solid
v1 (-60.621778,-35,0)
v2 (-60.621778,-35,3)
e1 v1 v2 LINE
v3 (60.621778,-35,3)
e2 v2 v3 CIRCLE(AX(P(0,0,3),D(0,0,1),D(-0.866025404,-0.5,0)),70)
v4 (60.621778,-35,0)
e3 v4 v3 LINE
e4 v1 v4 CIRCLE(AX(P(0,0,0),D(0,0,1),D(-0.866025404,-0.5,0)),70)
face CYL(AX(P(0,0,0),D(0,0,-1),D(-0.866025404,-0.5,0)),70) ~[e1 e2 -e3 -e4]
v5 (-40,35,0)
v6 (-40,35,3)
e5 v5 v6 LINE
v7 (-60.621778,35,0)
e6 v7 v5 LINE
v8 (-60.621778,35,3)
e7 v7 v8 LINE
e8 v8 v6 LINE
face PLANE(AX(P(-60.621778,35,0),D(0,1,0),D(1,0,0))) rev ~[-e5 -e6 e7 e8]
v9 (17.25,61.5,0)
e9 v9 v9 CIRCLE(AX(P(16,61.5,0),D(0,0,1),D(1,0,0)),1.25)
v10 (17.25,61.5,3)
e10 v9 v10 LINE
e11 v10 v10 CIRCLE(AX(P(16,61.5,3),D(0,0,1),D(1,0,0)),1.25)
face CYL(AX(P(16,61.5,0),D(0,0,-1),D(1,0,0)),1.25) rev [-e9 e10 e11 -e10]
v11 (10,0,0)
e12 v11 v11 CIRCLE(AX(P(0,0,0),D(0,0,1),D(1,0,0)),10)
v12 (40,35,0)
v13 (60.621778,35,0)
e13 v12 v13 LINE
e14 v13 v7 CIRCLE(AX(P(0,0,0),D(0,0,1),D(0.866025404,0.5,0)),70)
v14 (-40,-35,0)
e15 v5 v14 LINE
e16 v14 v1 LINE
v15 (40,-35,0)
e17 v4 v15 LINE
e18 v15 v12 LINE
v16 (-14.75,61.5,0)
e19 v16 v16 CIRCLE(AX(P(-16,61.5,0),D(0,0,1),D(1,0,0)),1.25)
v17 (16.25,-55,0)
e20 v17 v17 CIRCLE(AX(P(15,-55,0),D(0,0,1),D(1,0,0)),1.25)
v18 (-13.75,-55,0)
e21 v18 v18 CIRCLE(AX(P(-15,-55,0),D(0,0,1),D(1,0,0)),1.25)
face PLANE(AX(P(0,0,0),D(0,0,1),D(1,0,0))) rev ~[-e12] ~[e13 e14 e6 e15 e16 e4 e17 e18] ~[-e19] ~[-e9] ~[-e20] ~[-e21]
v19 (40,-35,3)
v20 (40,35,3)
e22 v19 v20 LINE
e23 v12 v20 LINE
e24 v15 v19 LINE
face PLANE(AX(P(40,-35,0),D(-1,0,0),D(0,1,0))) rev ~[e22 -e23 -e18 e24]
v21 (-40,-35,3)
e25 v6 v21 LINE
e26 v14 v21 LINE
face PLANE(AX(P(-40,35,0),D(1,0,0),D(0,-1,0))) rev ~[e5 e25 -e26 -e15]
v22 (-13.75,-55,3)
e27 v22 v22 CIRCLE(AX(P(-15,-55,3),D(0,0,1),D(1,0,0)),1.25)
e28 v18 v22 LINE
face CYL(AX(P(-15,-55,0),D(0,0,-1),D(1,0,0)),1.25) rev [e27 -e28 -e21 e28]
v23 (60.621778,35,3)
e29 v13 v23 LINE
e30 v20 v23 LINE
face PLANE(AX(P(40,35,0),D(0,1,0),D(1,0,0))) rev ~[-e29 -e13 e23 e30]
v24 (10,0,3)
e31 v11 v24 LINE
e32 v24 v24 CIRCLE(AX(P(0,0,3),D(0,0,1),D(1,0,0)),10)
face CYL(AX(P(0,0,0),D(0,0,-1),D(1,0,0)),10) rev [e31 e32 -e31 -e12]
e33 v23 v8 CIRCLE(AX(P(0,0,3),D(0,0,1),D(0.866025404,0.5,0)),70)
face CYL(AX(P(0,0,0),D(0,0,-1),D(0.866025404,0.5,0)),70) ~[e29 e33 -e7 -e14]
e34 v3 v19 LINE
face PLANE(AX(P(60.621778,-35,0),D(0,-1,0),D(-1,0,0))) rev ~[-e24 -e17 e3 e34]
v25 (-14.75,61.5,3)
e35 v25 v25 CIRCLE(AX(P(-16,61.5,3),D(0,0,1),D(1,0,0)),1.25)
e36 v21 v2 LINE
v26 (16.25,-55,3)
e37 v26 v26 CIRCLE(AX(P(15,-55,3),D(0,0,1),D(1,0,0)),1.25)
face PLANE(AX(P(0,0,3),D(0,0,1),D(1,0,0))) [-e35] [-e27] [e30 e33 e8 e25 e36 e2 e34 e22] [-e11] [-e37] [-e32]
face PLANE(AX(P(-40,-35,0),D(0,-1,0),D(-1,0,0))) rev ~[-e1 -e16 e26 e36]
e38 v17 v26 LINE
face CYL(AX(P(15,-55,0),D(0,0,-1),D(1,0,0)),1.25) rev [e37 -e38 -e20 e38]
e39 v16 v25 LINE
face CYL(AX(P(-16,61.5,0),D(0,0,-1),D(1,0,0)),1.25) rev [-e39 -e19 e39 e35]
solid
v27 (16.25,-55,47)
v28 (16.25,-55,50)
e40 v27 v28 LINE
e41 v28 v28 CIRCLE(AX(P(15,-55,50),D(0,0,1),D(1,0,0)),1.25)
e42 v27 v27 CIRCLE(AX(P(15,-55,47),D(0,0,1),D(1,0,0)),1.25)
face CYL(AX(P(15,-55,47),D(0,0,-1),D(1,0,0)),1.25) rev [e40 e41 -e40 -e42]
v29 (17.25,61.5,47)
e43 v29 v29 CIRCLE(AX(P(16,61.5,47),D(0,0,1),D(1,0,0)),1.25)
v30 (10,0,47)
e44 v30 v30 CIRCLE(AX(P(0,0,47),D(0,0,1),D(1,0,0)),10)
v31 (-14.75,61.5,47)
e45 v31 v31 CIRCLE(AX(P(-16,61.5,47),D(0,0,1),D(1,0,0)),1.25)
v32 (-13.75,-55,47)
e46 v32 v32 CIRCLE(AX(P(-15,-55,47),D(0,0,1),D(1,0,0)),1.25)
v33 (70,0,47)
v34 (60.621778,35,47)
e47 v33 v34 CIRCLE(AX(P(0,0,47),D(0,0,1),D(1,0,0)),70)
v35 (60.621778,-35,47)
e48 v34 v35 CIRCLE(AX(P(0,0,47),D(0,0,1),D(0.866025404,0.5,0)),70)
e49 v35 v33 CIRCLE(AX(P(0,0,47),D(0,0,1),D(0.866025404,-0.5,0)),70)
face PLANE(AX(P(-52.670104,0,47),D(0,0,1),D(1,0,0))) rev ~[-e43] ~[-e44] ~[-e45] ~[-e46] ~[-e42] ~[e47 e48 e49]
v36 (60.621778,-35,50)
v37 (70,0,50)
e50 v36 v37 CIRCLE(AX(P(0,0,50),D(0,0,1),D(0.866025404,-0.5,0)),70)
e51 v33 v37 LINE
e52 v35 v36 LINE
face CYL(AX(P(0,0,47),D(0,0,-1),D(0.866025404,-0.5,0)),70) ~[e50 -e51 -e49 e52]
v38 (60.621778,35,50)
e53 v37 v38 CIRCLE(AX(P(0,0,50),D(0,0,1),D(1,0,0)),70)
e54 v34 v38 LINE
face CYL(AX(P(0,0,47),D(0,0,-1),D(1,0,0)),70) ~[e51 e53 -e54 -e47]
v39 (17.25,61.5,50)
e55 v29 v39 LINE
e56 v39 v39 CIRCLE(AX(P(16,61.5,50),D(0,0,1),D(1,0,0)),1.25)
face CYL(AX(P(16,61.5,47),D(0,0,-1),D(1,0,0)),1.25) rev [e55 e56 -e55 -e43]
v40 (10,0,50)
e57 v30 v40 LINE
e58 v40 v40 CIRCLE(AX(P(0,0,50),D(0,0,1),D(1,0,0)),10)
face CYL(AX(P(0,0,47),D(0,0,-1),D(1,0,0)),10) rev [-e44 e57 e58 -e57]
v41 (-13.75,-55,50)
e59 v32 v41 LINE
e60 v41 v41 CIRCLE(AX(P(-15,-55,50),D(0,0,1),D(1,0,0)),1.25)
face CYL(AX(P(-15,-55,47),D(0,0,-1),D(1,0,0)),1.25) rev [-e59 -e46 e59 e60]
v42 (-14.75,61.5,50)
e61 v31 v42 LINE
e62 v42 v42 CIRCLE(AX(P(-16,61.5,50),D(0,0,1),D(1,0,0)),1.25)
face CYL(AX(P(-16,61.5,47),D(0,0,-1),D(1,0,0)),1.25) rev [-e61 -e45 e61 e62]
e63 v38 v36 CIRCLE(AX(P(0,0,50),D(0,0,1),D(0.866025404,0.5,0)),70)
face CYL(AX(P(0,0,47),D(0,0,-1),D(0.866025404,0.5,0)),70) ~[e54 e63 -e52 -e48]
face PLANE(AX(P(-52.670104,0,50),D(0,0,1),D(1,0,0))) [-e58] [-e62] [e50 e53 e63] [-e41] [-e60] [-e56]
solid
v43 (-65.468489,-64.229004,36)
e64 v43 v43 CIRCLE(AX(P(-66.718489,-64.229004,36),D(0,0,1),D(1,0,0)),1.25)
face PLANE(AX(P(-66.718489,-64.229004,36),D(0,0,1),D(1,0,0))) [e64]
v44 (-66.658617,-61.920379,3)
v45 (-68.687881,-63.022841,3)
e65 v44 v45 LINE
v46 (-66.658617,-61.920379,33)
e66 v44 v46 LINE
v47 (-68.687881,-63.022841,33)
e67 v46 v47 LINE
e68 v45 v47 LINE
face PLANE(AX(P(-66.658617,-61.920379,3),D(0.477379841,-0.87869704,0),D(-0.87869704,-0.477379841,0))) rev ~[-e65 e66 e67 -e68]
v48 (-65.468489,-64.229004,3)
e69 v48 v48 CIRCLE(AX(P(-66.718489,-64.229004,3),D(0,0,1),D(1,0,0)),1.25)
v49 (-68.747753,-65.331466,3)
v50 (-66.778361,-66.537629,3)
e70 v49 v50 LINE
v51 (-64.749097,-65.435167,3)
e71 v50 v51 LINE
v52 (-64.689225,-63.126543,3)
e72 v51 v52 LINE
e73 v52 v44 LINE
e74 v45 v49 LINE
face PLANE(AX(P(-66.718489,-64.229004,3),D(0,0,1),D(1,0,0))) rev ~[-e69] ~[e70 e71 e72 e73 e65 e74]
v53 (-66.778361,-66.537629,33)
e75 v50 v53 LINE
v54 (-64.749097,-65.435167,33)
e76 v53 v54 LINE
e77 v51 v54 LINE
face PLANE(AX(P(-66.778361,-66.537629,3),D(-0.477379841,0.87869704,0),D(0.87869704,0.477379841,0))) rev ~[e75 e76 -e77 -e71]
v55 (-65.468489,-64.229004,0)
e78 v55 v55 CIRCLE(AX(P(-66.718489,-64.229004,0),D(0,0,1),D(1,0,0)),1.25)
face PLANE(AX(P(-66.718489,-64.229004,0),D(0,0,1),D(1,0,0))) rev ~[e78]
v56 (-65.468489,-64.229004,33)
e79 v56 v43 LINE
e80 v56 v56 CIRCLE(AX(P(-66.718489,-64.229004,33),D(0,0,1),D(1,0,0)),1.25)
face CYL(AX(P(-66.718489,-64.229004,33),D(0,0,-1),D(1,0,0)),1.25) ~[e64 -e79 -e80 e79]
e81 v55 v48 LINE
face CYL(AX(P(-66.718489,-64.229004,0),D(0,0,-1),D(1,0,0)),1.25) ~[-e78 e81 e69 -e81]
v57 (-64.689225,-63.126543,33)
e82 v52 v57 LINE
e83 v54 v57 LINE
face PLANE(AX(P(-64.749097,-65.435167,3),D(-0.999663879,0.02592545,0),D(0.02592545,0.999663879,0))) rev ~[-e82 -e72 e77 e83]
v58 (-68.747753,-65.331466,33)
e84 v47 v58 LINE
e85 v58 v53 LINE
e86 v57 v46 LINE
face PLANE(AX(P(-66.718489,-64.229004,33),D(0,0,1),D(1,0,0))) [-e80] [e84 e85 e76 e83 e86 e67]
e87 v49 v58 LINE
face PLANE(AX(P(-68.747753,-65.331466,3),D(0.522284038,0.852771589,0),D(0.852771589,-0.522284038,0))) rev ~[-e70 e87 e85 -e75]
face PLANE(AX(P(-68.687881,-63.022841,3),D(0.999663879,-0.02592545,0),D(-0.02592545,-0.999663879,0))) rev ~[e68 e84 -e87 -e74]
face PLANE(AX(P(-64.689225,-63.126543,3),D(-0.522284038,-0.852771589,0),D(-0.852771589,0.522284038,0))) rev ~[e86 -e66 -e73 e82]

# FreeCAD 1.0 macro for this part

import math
import FreeCAD as App
import Part
import Sketcher


def add_polygon(sketch, points):
    """Adds a closed chain of lines whose ends are joined by coincident constraints."""
    first, n = sketch.GeometryCount, len(points)
    for a, b in zip(points, points[1:] + points[:1]):
        sketch.addGeometry(Part.LineSegment(App.Vector(*a, 0), App.Vector(*b, 0)), False)
    for i in range(n):
        sketch.addConstraint(Sketcher.Constraint("Coincident", first + i, 2, first + (i + 1) % n, 1))

doc = App.newDocument("Part")
body = doc.addObject("PartDesign::Body", "Body")

# Sketch on XY plane
sketch1 = body.newObject("Sketcher::SketchObject", "Sketch")
sketch1.AttachmentSupport = (doc.getObject("XY_Plane"), [""])
sketch1.MapMode = "FlatFace"
sketch1.addGeometry([
    Part.LineSegment(App.Vector(40, 35, 0), App.Vector(60.621778, 35, 0)),  # 0
    Part.ArcOfCircle(Part.Circle(App.Vector(0, 0, 0), App.Vector(0, 0, 1), 70), math.radians(30), math.radians(150)),  # 1
    Part.LineSegment(App.Vector(-60.621778, 35, 0), App.Vector(-40, 35, 0)),  # 2
    Part.LineSegment(App.Vector(-40, 35, 0), App.Vector(-40, -35, 0)),  # 3
    Part.LineSegment(App.Vector(-40, -35, 0), App.Vector(-60.621778, -35, 0)),  # 4
    Part.ArcOfCircle(Part.Circle(App.Vector(0, 0, 0), App.Vector(0, 0, 1), 70), math.radians(-150), math.radians(-30)),  # 5
    Part.LineSegment(App.Vector(60.621778, -35, 0), App.Vector(40, -35, 0)),  # 6
    Part.LineSegment(App.Vector(40, -35, 0), App.Vector(40, 35, 0)),  # 7
    Part.Circle(App.Vector(-15, -55, 0), App.Vector(0, 0, 1), 1.25),  # 8
    Part.Circle(App.Vector(15, -55, 0), App.Vector(0, 0, 1), 1.25),  # 9
    Part.Circle(App.Vector(0, 0, 0), App.Vector(0, 0, 1), 10),  # 10
    Part.Circle(App.Vector(-16, 61.5, 0), App.Vector(0, 0, 1), 1.25),  # 11
    Part.Circle(App.Vector(16, 61.5, 0), App.Vector(0, 0, 1), 1.25),  # 12
], False)
sketch1.addConstraint([
    Sketcher.Constraint("Coincident", 0, 2, 1, 1),
    Sketcher.Constraint("Coincident", 1, 2, 2, 1),
    Sketcher.Constraint("Coincident", 2, 2, 3, 1),
    Sketcher.Constraint("Coincident", 3, 2, 4, 1),
    Sketcher.Constraint("Coincident", 4, 2, 5, 1),
    Sketcher.Constraint("Coincident", 5, 2, 6, 1),
    Sketcher.Constraint("Coincident", 6, 2, 7, 1),
    Sketcher.Constraint("Coincident", 7, 2, 0, 1),
    Sketcher.Constraint("Horizontal", 0),
    Sketcher.Constraint("Horizontal", 2),
    Sketcher.Constraint("Vertical", 3),
    Sketcher.Constraint("Horizontal", 4),
    Sketcher.Constraint("Horizontal", 6),
    Sketcher.Constraint("Vertical", 7),
    Sketcher.Constraint("Coincident", 1, 3, -1, 1),
    Sketcher.Constraint("Coincident", 5, 3, -1, 1),
    Sketcher.Constraint("Coincident", 10, 3, -1, 1),
    Sketcher.Constraint("Equal", 1, 5),
    Sketcher.Constraint("Equal", 8, 9),
    Sketcher.Constraint("Equal", 9, 11),
    Sketcher.Constraint("Equal", 11, 12),
    Sketcher.Constraint("Symmetric", 2, 2, 6, 2, -1, 1),
    Sketcher.Constraint("Symmetric", 8, 3, 9, 3, -2),
    Sketcher.Constraint("Symmetric", 11, 3, 12, 3, -2),
    Sketcher.Constraint("Horizontal", 0, 2, 1, 2),
    Sketcher.Constraint("Horizontal", 4, 2, 5, 2),
    Sketcher.Constraint("Diameter", 10, 20.0),
    Sketcher.Constraint("Radius", 1, 70.0),
    Sketcher.Constraint("Diameter", 8, 2.5),
    Sketcher.Constraint("DistanceY", 3, 2, 3, 1, 70.0),
    Sketcher.Constraint("DistanceX", 8, 3, -1, 1, 15.0),
    Sketcher.Constraint("DistanceY", 8, 3, -1, 1, 55.0),
    Sketcher.Constraint("DistanceX", 11, 3, -1, 1, 16.0),
    Sketcher.Constraint("DistanceX", 2, 2, -1, 1, 40.0),
    Sketcher.Constraint("DistanceY", -1, 1, 11, 3, 61.5),
])
pad1 = body.newObject("PartDesign::Pad", "Pad")
pad1.Profile = sketch1
pad1.Length = 3
body2 = doc.addObject("PartDesign::Body", "Body001")

# Sketch on XY plane
sketch2 = body2.newObject("Sketcher::SketchObject", "Sketch001")
sketch2.AttachmentSupport = (doc.getObject("XY_Plane001"), [""])
sketch2.MapMode = "FlatFace"
sketch2.AttachmentOffset = App.Placement(App.Vector(0, 0, 47), App.Rotation())
sketch2.addGeometry([
    Part.ArcOfCircle(Part.Circle(App.Vector(0, 0, 0), App.Vector(0, 0, 1), 70), math.radians(30), math.radians(330)),  # 0
    Part.ArcOfCircle(Part.Circle(App.Vector(0, 0, 0), App.Vector(0, 0, 1), 70), math.radians(-30), math.radians(0)),  # 1
    Part.ArcOfCircle(Part.Circle(App.Vector(0, 0, 0), App.Vector(0, 0, 1), 70), math.radians(0), math.radians(30)),  # 2
    Part.Circle(App.Vector(-15, -55, 0), App.Vector(0, 0, 1), 1.25),  # 3
    Part.Circle(App.Vector(15, -55, 0), App.Vector(0, 0, 1), 1.25),  # 4
    Part.Circle(App.Vector(0, 0, 0), App.Vector(0, 0, 1), 10),  # 5
    Part.Circle(App.Vector(-16, 61.5, 0), App.Vector(0, 0, 1), 1.25),  # 6
    Part.Circle(App.Vector(16, 61.5, 0), App.Vector(0, 0, 1), 1.25),  # 7
], False)
sketch2.addConstraint([
    Sketcher.Constraint("Tangent", 0, 2, 1, 1),
    Sketcher.Constraint("Tangent", 1, 2, 2, 1),
    Sketcher.Constraint("Tangent", 2, 2, 0, 1),
    Sketcher.Constraint("Coincident", 0, 3, -1, 1),
    Sketcher.Constraint("Coincident", 5, 3, -1, 1),
    Sketcher.Constraint("Equal", 3, 4),
    Sketcher.Constraint("Equal", 4, 6),
    Sketcher.Constraint("Equal", 6, 7),
    Sketcher.Constraint("Symmetric", 3, 3, 4, 3, -2),
    Sketcher.Constraint("Symmetric", 6, 3, 7, 3, -2),
    Sketcher.Constraint("PointOnObject", 1, 2, -1),
    Sketcher.Constraint("Vertical", 0, 2, 2, 2),
    Sketcher.Constraint("Diameter", 5, 20.0),
    Sketcher.Constraint("Radius", 0, 70.0),
    Sketcher.Constraint("Diameter", 3, 2.5),
    Sketcher.Constraint("DistanceX", 3, 3, -1, 1, 15.0),
    Sketcher.Constraint("DistanceY", 3, 3, -1, 1, 55.0),
    Sketcher.Constraint("DistanceX", 6, 3, -1, 1, 16.0),
    Sketcher.Constraint("DistanceY", 0, 2, -1, 1, 35.0),
    Sketcher.Constraint("DistanceY", -1, 1, 6, 3, 61.5),
])
pad2 = body2.newObject("PartDesign::Pad", "Pad001")
pad2.Profile = sketch2
pad2.Length = 3
body3 = doc.addObject("PartDesign::Body", "Body002")

# Sketch on XY plane
sketch3 = body3.newObject("Sketcher::SketchObject", "Sketch002")
sketch3.AttachmentSupport = (doc.getObject("XY_Plane002"), [""])
sketch3.MapMode = "FlatFace"
sketch3.addGeometry(Part.Circle(App.Vector(-66.718489, -64.229004, 0), App.Vector(0, 0, 1), 1.25), False)
sketch3.addConstraint([
    Sketcher.Constraint("Diameter", 0, 2.5),
    Sketcher.Constraint("DistanceX", 0, 3, -1, 1, 66.718489),
    Sketcher.Constraint("DistanceY", 0, 3, -1, 1, 64.229004),
])
pad3 = body3.newObject("PartDesign::Pad", "Pad002")
pad3.Profile = sketch3
pad3.Length = 3

# Sketch on XY plane
sketch4 = body3.newObject("Sketcher::SketchObject", "Sketch003")
sketch4.AttachmentSupport = (doc.getObject("XY_Plane002"), [""])
sketch4.MapMode = "FlatFace"
sketch4.AttachmentOffset = App.Placement(App.Vector(0, 0, 3), App.Rotation())
add_polygon(sketch4, [(-66.778361, -66.537629), (-64.749097, -65.435167), (-64.689225, -63.126543), (-66.658617, -61.920379), (-68.687881, -63.022841), (-68.747753, -65.331466)])  # lines 0-5
sketch4.addConstraint([
    Sketcher.Constraint("Parallel", 0, 3),
    Sketcher.Constraint("Parallel", 1, 4),
    Sketcher.Constraint("Parallel", 2, 5),
    Sketcher.Constraint("Equal", 0, 1),
    Sketcher.Constraint("Equal", 1, 2),
    Sketcher.Constraint("Equal", 2, 3),
    Sketcher.Constraint("Distance", 0, 2.309401),
    Sketcher.Constraint("DistanceY", 1, 2, 3, 2, 0.103702),
    Sketcher.Constraint("DistanceY", 2, 2, -1, 1, 61.920379),
    Sketcher.Constraint("DistanceX", 3, 2, -1, 1, 68.687881),
    Sketcher.Constraint("DistanceY", 3, 2, -1, 1, 63.022841),
    Sketcher.Constraint("DistanceX", 5, 2, -1, 1, 66.778361),
])
pad4 = body3.newObject("PartDesign::Pad", "Pad003")
pad4.Profile = sketch4
pad4.Length = 30

# Sketch on XY plane
sketch5 = body3.newObject("Sketcher::SketchObject", "Sketch004")
sketch5.AttachmentSupport = (doc.getObject("XY_Plane002"), [""])
sketch5.MapMode = "FlatFace"
sketch5.AttachmentOffset = App.Placement(App.Vector(0, 0, 33), App.Rotation())
sketch5.addGeometry(Part.Circle(App.Vector(-66.718489, -64.229004, 0), App.Vector(0, 0, 1), 1.25), False)
sketch5.addConstraint([
    Sketcher.Constraint("Diameter", 0, 2.5),
    Sketcher.Constraint("DistanceX", 0, 3, -1, 1, 66.718489),
    Sketcher.Constraint("DistanceY", 0, 3, -1, 1, 64.229004),
])
pad5 = body3.newObject("PartDesign::Pad", "Pad004")
pad5.Profile = sketch5
pad5.Length = 3

doc.recompute()
